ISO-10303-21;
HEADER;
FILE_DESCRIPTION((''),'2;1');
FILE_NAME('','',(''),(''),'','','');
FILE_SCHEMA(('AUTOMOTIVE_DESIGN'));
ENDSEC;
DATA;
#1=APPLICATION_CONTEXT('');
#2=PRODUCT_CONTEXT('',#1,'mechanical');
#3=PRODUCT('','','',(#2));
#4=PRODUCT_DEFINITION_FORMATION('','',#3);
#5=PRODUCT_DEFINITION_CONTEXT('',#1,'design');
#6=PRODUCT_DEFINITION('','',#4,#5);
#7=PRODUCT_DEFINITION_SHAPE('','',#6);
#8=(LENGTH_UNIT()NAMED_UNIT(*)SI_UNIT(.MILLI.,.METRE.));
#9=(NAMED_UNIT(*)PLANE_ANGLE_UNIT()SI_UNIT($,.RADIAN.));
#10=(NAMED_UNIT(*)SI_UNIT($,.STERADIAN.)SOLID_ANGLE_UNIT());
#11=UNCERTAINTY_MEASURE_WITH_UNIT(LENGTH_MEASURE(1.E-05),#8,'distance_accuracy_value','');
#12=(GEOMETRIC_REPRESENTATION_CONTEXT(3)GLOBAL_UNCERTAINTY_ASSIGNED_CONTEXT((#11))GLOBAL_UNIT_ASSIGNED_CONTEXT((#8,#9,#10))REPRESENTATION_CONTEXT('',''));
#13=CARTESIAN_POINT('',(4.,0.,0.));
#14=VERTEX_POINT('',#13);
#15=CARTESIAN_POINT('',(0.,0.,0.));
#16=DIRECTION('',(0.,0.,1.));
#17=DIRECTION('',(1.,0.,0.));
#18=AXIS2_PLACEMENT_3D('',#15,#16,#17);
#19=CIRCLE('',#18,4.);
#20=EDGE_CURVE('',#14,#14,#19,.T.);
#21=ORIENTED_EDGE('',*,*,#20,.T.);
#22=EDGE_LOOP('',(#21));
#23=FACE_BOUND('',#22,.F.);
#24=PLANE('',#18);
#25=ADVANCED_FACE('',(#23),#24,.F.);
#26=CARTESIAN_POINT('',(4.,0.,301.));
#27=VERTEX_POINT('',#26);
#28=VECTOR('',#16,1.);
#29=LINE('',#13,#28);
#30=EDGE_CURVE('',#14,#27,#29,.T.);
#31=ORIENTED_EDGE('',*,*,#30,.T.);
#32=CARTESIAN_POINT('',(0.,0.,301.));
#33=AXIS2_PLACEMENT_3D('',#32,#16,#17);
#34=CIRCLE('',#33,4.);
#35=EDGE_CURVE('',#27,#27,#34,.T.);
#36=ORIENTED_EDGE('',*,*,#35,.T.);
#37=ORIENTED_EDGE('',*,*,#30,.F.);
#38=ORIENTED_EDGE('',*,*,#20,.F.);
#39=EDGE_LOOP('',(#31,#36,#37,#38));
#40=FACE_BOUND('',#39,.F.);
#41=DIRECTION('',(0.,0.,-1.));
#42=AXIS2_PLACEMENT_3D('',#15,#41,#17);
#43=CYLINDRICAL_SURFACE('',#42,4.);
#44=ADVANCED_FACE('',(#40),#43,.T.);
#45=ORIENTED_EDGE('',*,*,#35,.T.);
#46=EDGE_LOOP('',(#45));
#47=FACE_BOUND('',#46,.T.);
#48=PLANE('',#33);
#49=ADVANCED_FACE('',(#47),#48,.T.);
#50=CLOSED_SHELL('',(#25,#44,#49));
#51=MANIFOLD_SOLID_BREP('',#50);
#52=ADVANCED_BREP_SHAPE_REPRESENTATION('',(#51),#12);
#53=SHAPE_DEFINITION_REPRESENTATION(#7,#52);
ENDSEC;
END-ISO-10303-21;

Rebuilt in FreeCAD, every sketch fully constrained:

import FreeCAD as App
import Part
import Sketcher

V = App.Vector
Q = App.Units.Quantity

doc = App.newDocument("Part")
params = doc.addObject("Spreadsheet::Sheet", "Params")
for row, (alias, value) in enumerate([
    ("sketch1_diameter", "8 mm"),
    ("pad1_length", "301 mm"),
], start=1):
    params.set(f"A{row}", alias)
    params.set(f"B{row}", "=" + value)
    params.setAlias(f"B{row}", alias)

body = doc.addObject("PartDesign::Body", "Body")

sketch1 = doc.addObject("Sketcher::SketchObject", "Sketch")
body.addObject(sketch1)
sketch1.AttachmentSupport = (doc.XY_Plane, [""])
sketch1.MapMode = "FlatFace"
sketch1.addGeometry(Part.Circle(V(0, 0, 0), V(0, 0, 1), 4), False)
sketch1.addConstraint([
    Sketcher.Constraint("Coincident", 0, 3, -1, 1),
    Sketcher.Constraint("Diameter", 0, Q("8 mm")),
])
sketch1.setExpression("Constraints[1]", "Params.sketch1_diameter")
pad1 = doc.addObject("PartDesign::Pad", "Pad")
body.addObject(pad1)
pad1.Profile = sketch1
pad1.setExpression("Length", "Params.pad1_length")

doc.recompute()
